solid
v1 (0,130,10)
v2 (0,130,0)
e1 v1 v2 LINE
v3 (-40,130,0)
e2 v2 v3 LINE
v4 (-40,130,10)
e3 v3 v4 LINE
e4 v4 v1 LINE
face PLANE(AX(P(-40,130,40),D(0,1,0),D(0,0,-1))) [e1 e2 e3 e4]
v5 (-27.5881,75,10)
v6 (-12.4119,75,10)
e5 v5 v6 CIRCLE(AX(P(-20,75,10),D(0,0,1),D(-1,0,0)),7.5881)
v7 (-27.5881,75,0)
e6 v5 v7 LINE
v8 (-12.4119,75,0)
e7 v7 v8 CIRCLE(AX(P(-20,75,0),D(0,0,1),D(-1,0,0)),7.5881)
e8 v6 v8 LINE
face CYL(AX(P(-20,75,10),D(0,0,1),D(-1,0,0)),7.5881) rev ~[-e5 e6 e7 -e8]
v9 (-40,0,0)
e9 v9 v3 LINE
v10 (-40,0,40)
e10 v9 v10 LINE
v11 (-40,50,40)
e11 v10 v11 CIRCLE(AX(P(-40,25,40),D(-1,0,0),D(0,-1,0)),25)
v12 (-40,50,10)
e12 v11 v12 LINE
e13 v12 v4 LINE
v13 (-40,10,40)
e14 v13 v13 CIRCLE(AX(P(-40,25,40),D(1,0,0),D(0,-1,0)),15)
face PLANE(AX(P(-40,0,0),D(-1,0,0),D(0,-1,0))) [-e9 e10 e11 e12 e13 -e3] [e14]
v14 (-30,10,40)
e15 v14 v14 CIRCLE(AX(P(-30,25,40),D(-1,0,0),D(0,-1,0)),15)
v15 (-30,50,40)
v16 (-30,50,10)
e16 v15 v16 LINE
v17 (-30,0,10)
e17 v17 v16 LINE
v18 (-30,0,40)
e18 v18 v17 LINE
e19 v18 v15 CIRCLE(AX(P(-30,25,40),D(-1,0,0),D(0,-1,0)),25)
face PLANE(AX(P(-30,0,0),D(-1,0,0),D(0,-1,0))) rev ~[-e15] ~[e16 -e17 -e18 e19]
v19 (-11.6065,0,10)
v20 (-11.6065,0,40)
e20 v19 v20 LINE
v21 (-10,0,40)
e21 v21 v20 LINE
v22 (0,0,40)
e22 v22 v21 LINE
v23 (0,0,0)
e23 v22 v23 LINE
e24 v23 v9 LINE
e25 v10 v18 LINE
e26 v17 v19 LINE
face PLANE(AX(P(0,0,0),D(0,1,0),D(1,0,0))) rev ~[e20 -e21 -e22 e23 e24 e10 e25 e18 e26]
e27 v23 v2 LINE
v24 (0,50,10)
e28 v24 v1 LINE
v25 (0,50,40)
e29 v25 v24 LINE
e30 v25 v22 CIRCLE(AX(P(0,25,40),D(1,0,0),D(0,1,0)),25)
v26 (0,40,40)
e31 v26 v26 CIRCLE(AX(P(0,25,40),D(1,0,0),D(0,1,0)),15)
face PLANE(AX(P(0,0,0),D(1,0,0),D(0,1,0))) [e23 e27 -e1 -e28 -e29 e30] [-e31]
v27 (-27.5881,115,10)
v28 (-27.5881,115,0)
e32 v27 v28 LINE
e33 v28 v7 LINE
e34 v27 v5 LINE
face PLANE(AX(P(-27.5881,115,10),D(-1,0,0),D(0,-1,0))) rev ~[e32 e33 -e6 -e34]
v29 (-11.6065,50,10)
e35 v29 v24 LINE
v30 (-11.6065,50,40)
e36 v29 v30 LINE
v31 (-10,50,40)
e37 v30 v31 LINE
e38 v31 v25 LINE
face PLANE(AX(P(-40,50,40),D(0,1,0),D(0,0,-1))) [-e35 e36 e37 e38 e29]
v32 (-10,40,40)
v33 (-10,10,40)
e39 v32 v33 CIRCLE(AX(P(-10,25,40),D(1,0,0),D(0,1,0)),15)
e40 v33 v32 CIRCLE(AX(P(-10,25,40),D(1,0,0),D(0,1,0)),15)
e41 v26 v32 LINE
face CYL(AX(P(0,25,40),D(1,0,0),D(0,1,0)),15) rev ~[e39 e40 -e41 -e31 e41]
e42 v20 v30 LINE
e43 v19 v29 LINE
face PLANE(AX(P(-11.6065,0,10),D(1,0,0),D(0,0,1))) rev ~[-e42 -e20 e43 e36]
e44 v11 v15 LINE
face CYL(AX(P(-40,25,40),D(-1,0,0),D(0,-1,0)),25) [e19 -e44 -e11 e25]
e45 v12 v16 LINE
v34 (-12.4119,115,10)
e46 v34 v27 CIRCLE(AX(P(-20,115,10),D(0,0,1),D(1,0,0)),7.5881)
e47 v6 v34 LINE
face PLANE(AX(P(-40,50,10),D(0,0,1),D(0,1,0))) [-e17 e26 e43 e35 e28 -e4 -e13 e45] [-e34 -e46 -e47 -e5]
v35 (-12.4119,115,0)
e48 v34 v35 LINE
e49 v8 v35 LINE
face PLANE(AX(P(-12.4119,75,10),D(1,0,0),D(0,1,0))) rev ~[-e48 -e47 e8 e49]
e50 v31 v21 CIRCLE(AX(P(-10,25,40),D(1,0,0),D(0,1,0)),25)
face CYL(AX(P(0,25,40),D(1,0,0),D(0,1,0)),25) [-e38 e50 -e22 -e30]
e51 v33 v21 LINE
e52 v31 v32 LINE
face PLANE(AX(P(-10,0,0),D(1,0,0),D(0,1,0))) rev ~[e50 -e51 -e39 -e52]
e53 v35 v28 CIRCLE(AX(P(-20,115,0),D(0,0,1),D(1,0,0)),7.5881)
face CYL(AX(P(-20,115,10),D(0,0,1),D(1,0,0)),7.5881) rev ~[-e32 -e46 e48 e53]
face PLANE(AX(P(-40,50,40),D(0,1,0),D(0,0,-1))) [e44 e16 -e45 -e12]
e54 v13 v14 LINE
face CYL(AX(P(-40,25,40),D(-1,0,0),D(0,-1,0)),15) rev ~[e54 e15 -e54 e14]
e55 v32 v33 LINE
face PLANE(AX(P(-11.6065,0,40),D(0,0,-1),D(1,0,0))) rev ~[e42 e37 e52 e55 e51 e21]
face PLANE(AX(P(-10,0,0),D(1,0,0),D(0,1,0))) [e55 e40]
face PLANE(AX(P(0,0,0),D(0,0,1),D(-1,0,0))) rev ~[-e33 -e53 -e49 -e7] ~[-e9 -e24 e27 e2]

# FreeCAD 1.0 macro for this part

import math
import FreeCAD as App
import Part
import Sketcher

doc = App.newDocument("Part")
params = doc.addObject("Spreadsheet::Sheet", "Params")
for row, (alias, value) in enumerate([
    ("sketch1_width", "40 mm"),
    ("sketch1_width2", "10 mm"),
    ("pad1_length", "130 mm"),
    ("sketch2_radius", "25 mm"),
    ("sketch2_radius2", "15 mm"),
    ("pad2_length", "10 mm"),
    ("sketch3_diameter", "30 mm"),
    ("pocket1_length", "10 mm"),
    ("sketch4_height", "30 mm"),
    ("sketch4_width", "80 mm"),
    ("pocket2_length", "10 mm"),
    ("sketch5_height", "30 mm"),
    ("sketch5_width", "80 mm"),
    ("pad3_length", "10 mm"),
    ("sketch6_height", "30 mm"),
    ("sketch6_width", "80 mm"),
    ("pocket3_length", "66.91 mm"),
    ("sketch7_radius", "25 mm"),
    ("sketch7_radius2", "15 mm"),
    ("pocket4_length", "10 mm"),
    ("sketch8_radius", "25 mm"),
    ("sketch8_radius2", "15 mm"),
    ("pad4_length", "10 mm"),
    ("sketch9_height", "40 mm"),
    ("pocket5_length", "34.041 mm"),
], start=1):
    params.set(f"A{row}", alias)
    params.set(f"B{row}", "=" + value)
    params.setAlias(f"B{row}", alias)

body = doc.addObject("PartDesign::Body", "Body")

sketch1 = body.newObject("Sketcher::SketchObject", "Sketch")
sketch1.AttachmentSupport = (doc.getObject("XZ_Plane"), [""])
sketch1.MapMode = "FlatFace"
sketch1.addGeometry(Part.LineSegment(App.Vector(0, 40, 0), App.Vector(0, 0, 0)), False)
sketch1.addGeometry(Part.LineSegment(App.Vector(0, 0, 0), App.Vector(-40, 0, 0)), False)
sketch1.addGeometry(Part.LineSegment(App.Vector(-40, 0, 0), App.Vector(-40, 40, 0)), False)
sketch1.addGeometry(Part.LineSegment(App.Vector(-40, 40, 0), App.Vector(-30, 40, 0)), False)
sketch1.addGeometry(Part.LineSegment(App.Vector(-30, 40, 0), App.Vector(-30, 10, 0)), False)
sketch1.addGeometry(Part.LineSegment(App.Vector(-30, 10, 0), App.Vector(-11.6065, 10, 0)), False)
sketch1.addGeometry(Part.LineSegment(App.Vector(-11.6065, 10, 0), App.Vector(-11.6065, 40, 0)), False)
sketch1.addGeometry(Part.LineSegment(App.Vector(-11.6065, 40, 0), App.Vector(0, 40, 0)), False)
sketch1.addConstraint(Sketcher.Constraint("Coincident", 0, 2, 1, 1))
sketch1.addConstraint(Sketcher.Constraint("Coincident", 1, 2, 2, 1))
sketch1.addConstraint(Sketcher.Constraint("Coincident", 2, 2, 3, 1))
sketch1.addConstraint(Sketcher.Constraint("Coincident", 3, 2, 4, 1))
sketch1.addConstraint(Sketcher.Constraint("Coincident", 4, 2, 5, 1))
sketch1.addConstraint(Sketcher.Constraint("Coincident", 5, 2, 6, 1))
sketch1.addConstraint(Sketcher.Constraint("Coincident", 6, 2, 7, 1))
sketch1.addConstraint(Sketcher.Constraint("Coincident", 7, 2, 0, 1))
sketch1.addConstraint(Sketcher.Constraint("Vertical", 0))
sketch1.addConstraint(Sketcher.Constraint("Horizontal", 1))
sketch1.addConstraint(Sketcher.Constraint("Vertical", 2))
sketch1.addConstraint(Sketcher.Constraint("Horizontal", 3))
sketch1.addConstraint(Sketcher.Constraint("Vertical", 4))
sketch1.addConstraint(Sketcher.Constraint("Horizontal", 5))
sketch1.addConstraint(Sketcher.Constraint("Vertical", 6))
sketch1.addConstraint(Sketcher.Constraint("Horizontal", 7))
sketch1.addConstraint(Sketcher.Constraint("Coincident", 0, 2, -1, 1))
sketch1.addConstraint(Sketcher.Constraint("Horizontal", 3, 2, 6, 2))
sketch1.addConstraint(Sketcher.Constraint("Equal", 1, 0))
sketch1.addConstraint(Sketcher.Constraint("DistanceX", 1, 2, 1, 1, 40.0))
sketch1.addConstraint(Sketcher.Constraint("DistanceX", 3, 1, 3, 2, 10.0))
sketch1.addConstraint(Sketcher.Constraint("DistanceY", -1, 1, 4, 2, 10.0))
sketch1.addConstraint(Sketcher.Constraint("DistanceX", 7, 1, 7, 2, 11.6065))
sketch1.setExpression("Constraints[19]", "Params.sketch1_width")
sketch1.setExpression("Constraints[20]", "Params.sketch1_width2")
pad1 = body.newObject("PartDesign::Pad", "Pad")
pad1.Profile = sketch1
pad1.setExpression("Length", "Params.pad1_length")
pad1.Reversed = True

sketch2 = body.newObject("Sketcher::SketchObject", "Sketch001")
sketch2.AttachmentSupport = (doc.getObject("YZ_Plane"), [""])
sketch2.MapMode = "FlatFace"
sketch2.AttachmentOffset = App.Placement(App.Vector(0, 0, -40), App.Rotation())
sketch2.addGeometry(Part.LineSegment(App.Vector(10, 40, 0), App.Vector(0, 40, 0)), False)
sketch2.addGeometry(Part.ArcOfCircle(Part.Circle(App.Vector(25, 40, 0), App.Vector(0, 0, 1), 25), math.radians(0), math.radians(180)), False)
sketch2.addGeometry(Part.LineSegment(App.Vector(50, 40, 0), App.Vector(40, 40, 0)), False)
sketch2.addGeometry(Part.ArcOfCircle(Part.Circle(App.Vector(25, 40, 0), App.Vector(0, 0, 1), 15), math.radians(0), math.radians(180)), False)
sketch2.addConstraint(Sketcher.Constraint("Coincident", 0, 2, 1, 2))
sketch2.addConstraint(Sketcher.Constraint("Coincident", 1, 1, 2, 1))
sketch2.addConstraint(Sketcher.Constraint("Coincident", 2, 2, 3, 1))
sketch2.addConstraint(Sketcher.Constraint("Coincident", 3, 2, 0, 1))
sketch2.addConstraint(Sketcher.Constraint("Horizontal", 0))
sketch2.addConstraint(Sketcher.Constraint("Horizontal", 2))
sketch2.addConstraint(Sketcher.Constraint("Coincident", 3, 3, 1, 3))
sketch2.addConstraint(Sketcher.Constraint("PointOnObject", 0, 2, -2))
sketch2.addConstraint(Sketcher.Constraint("Horizontal", 3, 3, 0, 2))
sketch2.addConstraint(Sketcher.Constraint("Horizontal", 0, 2, 1, 1))
sketch2.addConstraint(Sketcher.Constraint("Radius", 1, 25.0))
sketch2.addConstraint(Sketcher.Constraint("Radius", 3, 15.0))
sketch2.addConstraint(Sketcher.Constraint("DistanceY", -1, 1, 1, 3, 40.0))
sketch2.setExpression("Constraints[10]", "Params.sketch2_radius")
sketch2.setExpression("Constraints[11]", "Params.sketch2_radius2")
pad2 = body.newObject("PartDesign::Pad", "Pad001")
pad2.Profile = sketch2
pad2.setExpression("Length", "Params.pad2_length")

sketch3 = body.newObject("Sketcher::SketchObject", "Sketch002")
sketch3.AttachmentSupport = (doc.getObject("YZ_Plane"), [""])
sketch3.MapMode = "FlatFace"
sketch3.AttachmentOffset = App.Placement(App.Vector(0, 0, -40), App.Rotation())
sketch3.addGeometry(Part.Circle(App.Vector(25, 40, 0), App.Vector(0, 0, 1), 15), False)
sketch3.addConstraint(Sketcher.Constraint("Diameter", 0, 30.0))
sketch3.addConstraint(Sketcher.Constraint("DistanceX", -1, 1, 0, 3, 25.0))
sketch3.addConstraint(Sketcher.Constraint("DistanceY", -1, 1, 0, 3, 40.0))
sketch3.setExpression("Constraints[0]", "Params.sketch3_diameter")
pocket1 = body.newObject("PartDesign::Pocket", "Pocket")
pocket1.Profile = sketch3
pocket1.setExpression("Length", "Params.pocket1_length")
pocket1.Reversed = True

sketch4 = body.newObject("Sketcher::SketchObject", "Sketch003")
sketch4.AttachmentSupport = (doc.getObject("YZ_Plane"), [""])
sketch4.MapMode = "FlatFace"
sketch4.AttachmentOffset = App.Placement(App.Vector(0, 0, -40), App.Rotation())
sketch4.addGeometry(Part.LineSegment(App.Vector(50, 10, 0), App.Vector(50, 40, 0)), False)
sketch4.addGeometry(Part.LineSegment(App.Vector(50, 40, 0), App.Vector(130, 40, 0)), False)
sketch4.addGeometry(Part.LineSegment(App.Vector(130, 40, 0), App.Vector(130, 10, 0)), False)
sketch4.addGeometry(Part.LineSegment(App.Vector(130, 10, 0), App.Vector(50, 10, 0)), False)
sketch4.addConstraint(Sketcher.Constraint("Coincident", 0, 2, 1, 1))
sketch4.addConstraint(Sketcher.Constraint("Coincident", 1, 2, 2, 1))
sketch4.addConstraint(Sketcher.Constraint("Coincident", 2, 2, 3, 1))
sketch4.addConstraint(Sketcher.Constraint("Coincident", 3, 2, 0, 1))
sketch4.addConstraint(Sketcher.Constraint("Vertical", 0))
sketch4.addConstraint(Sketcher.Constraint("Horizontal", 1))
sketch4.addConstraint(Sketcher.Constraint("Vertical", 2))
sketch4.addConstraint(Sketcher.Constraint("Horizontal", 3))
sketch4.addConstraint(Sketcher.Constraint("DistanceY", 0, 1, 0, 2, 30.0))
sketch4.addConstraint(Sketcher.Constraint("DistanceX", -1, 1, 0, 2, 50.0))
sketch4.addConstraint(Sketcher.Constraint("DistanceX", 1, 1, 1, 2, 80.0))
sketch4.addConstraint(Sketcher.Constraint("DistanceY", -1, 1, 0, 2, 40.0))
sketch4.setExpression("Constraints[8]", "Params.sketch4_height")
sketch4.setExpression("Constraints[10]", "Params.sketch4_width")
pocket2 = body.newObject("PartDesign::Pocket", "Pocket001")
pocket2.Profile = sketch4
pocket2.setExpression("Length", "Params.pocket2_length")
pocket2.Reversed = True

sketch5 = body.newObject("Sketcher::SketchObject", "Sketch004")
sketch5.AttachmentSupport = (doc.getObject("YZ_Plane"), [""])
sketch5.MapMode = "FlatFace"
sketch5.AttachmentOffset = App.Placement(App.Vector(0, 0, -40), App.Rotation())
sketch5.addGeometry(Part.LineSegment(App.Vector(50, 10, 0), App.Vector(50, 40, 0)), False)
sketch5.addGeometry(Part.LineSegment(App.Vector(50, 40, 0), App.Vector(130, 40, 0)), False)
sketch5.addGeometry(Part.LineSegment(App.Vector(130, 40, 0), App.Vector(130, 10, 0)), False)
sketch5.addGeometry(Part.LineSegment(App.Vector(130, 10, 0), App.Vector(50, 10, 0)), False)
sketch5.addConstraint(Sketcher.Constraint("Coincident", 0, 2, 1, 1))
sketch5.addConstraint(Sketcher.Constraint("Coincident", 1, 2, 2, 1))
sketch5.addConstraint(Sketcher.Constraint("Coincident", 2, 2, 3, 1))
sketch5.addConstraint(Sketcher.Constraint("Coincident", 3, 2, 0, 1))
sketch5.addConstraint(Sketcher.Constraint("Vertical", 0))
sketch5.addConstraint(Sketcher.Constraint("Horizontal", 1))
sketch5.addConstraint(Sketcher.Constraint("Vertical", 2))
sketch5.addConstraint(Sketcher.Constraint("Horizontal", 3))
sketch5.addConstraint(Sketcher.Constraint("DistanceY", 0, 1, 0, 2, 30.0))
sketch5.addConstraint(Sketcher.Constraint("DistanceX", -1, 1, 0, 2, 50.0))
sketch5.addConstraint(Sketcher.Constraint("DistanceX", 1, 1, 1, 2, 80.0))
sketch5.addConstraint(Sketcher.Constraint("DistanceY", -1, 1, 0, 2, 40.0))
sketch5.setExpression("Constraints[8]", "Params.sketch5_height")
sketch5.setExpression("Constraints[10]", "Params.sketch5_width")
pad3 = body.newObject("PartDesign::Pad", "Pad002")
pad3.Profile = sketch5
pad3.setExpression("Length", "Params.pad3_length")

sketch6 = body.newObject("Sketcher::SketchObject", "Sketch005")
sketch6.AttachmentSupport = (doc.getObject("YZ_Plane"), [""])
sketch6.MapMode = "FlatFace"
sketch6.AttachmentOffset = App.Placement(App.Vector(0, 0, -40), App.Rotation())
sketch6.addGeometry(Part.LineSegment(App.Vector(50, 10, 0), App.Vector(50, 40, 0)), False)
sketch6.addGeometry(Part.LineSegment(App.Vector(50, 40, 0), App.Vector(130, 40, 0)), False)
sketch6.addGeometry(Part.LineSegment(App.Vector(130, 40, 0), App.Vector(130, 10, 0)), False)
sketch6.addGeometry(Part.LineSegment(App.Vector(130, 10, 0), App.Vector(50, 10, 0)), False)
sketch6.addConstraint(Sketcher.Constraint("Coincident", 0, 2, 1, 1))
sketch6.addConstraint(Sketcher.Constraint("Coincident", 1, 2, 2, 1))
sketch6.addConstraint(Sketcher.Constraint("Coincident", 2, 2, 3, 1))
sketch6.addConstraint(Sketcher.Constraint("Coincident", 3, 2, 0, 1))
sketch6.addConstraint(Sketcher.Constraint("Vertical", 0))
sketch6.addConstraint(Sketcher.Constraint("Horizontal", 1))
sketch6.addConstraint(Sketcher.Constraint("Vertical", 2))
sketch6.addConstraint(Sketcher.Constraint("Horizontal", 3))
sketch6.addConstraint(Sketcher.Constraint("DistanceY", 0, 1, 0, 2, 30.0))
sketch6.addConstraint(Sketcher.Constraint("DistanceX", -1, 1, 0, 2, 50.0))
sketch6.addConstraint(Sketcher.Constraint("DistanceX", 1, 1, 1, 2, 80.0))
sketch6.addConstraint(Sketcher.Constraint("DistanceY", -1, 1, 0, 2, 40.0))
sketch6.setExpression("Constraints[8]", "Params.sketch6_height")
sketch6.setExpression("Constraints[10]", "Params.sketch6_width")
pocket3 = body.newObject("PartDesign::Pocket", "Pocket002")
pocket3.Profile = sketch6
pocket3.setExpression("Length", "Params.pocket3_length")
pocket3.Reversed = True

sketch7 = body.newObject("Sketcher::SketchObject", "Sketch006")
sketch7.AttachmentSupport = (doc.getObject("YZ_Plane"), [""])
sketch7.MapMode = "FlatFace"
sketch7.addGeometry(Part.LineSegment(App.Vector(40, 40, 0), App.Vector(50, 40, 0)), False)
sketch7.addGeometry(Part.ArcOfCircle(Part.Circle(App.Vector(25, 40, 0), App.Vector(0, 0, 1), 25), math.radians(0), math.radians(180)), False)
sketch7.addGeometry(Part.LineSegment(App.Vector(0, 40, 0), App.Vector(10, 40, 0)), False)
sketch7.addGeometry(Part.ArcOfCircle(Part.Circle(App.Vector(25, 40, 0), App.Vector(0, 0, 1), 15), math.radians(180), math.radians(360)), False)
sketch7.addConstraint(Sketcher.Constraint("Coincident", 0, 2, 1, 1))
sketch7.addConstraint(Sketcher.Constraint("Coincident", 1, 2, 2, 1))
sketch7.addConstraint(Sketcher.Constraint("Coincident", 2, 2, 3, 1))
sketch7.addConstraint(Sketcher.Constraint("Coincident", 3, 2, 0, 1))
sketch7.addConstraint(Sketcher.Constraint("Horizontal", 0))
sketch7.addConstraint(Sketcher.Constraint("Horizontal", 2))
sketch7.addConstraint(Sketcher.Constraint("Coincident", 3, 3, 1, 3))
sketch7.addConstraint(Sketcher.Constraint("PointOnObject", 1, 2, -2))
sketch7.addConstraint(Sketcher.Constraint("Horizontal", 3, 3, 0, 2))
sketch7.addConstraint(Sketcher.Constraint("Horizontal", 0, 2, 1, 2))
sketch7.addConstraint(Sketcher.Constraint("Radius", 1, 25.0))
sketch7.addConstraint(Sketcher.Constraint("Radius", 3, 15.0))
sketch7.addConstraint(Sketcher.Constraint("DistanceY", -1, 1, 1, 3, 40.0))
sketch7.setExpression("Constraints[10]", "Params.sketch7_radius")
sketch7.setExpression("Constraints[11]", "Params.sketch7_radius2")
pocket4 = body.newObject("PartDesign::Pocket", "Pocket003")
pocket4.Profile = sketch7
pocket4.setExpression("Length", "Params.pocket4_length")

sketch8 = body.newObject("Sketcher::SketchObject", "Sketch007")
sketch8.AttachmentSupport = (doc.getObject("YZ_Plane"), [""])
sketch8.MapMode = "FlatFace"
sketch8.addGeometry(Part.LineSegment(App.Vector(40, 40, 0), App.Vector(50, 40, 0)), False)
sketch8.addGeometry(Part.ArcOfCircle(Part.Circle(App.Vector(25, 40, 0), App.Vector(0, 0, 1), 25), math.radians(0), math.radians(180)), False)
sketch8.addGeometry(Part.LineSegment(App.Vector(0, 40, 0), App.Vector(10, 40, 0)), False)
sketch8.addGeometry(Part.ArcOfCircle(Part.Circle(App.Vector(25, 40, 0), App.Vector(0, 0, 1), 15), math.radians(0), math.radians(180)), False)
sketch8.addConstraint(Sketcher.Constraint("Coincident", 0, 2, 1, 1))
sketch8.addConstraint(Sketcher.Constraint("Coincident", 1, 2, 2, 1))
sketch8.addConstraint(Sketcher.Constraint("Coincident", 2, 2, 3, 2))
sketch8.addConstraint(Sketcher.Constraint("Coincident", 3, 1, 0, 1))
sketch8.addConstraint(Sketcher.Constraint("Horizontal", 0))
sketch8.addConstraint(Sketcher.Constraint("Horizontal", 2))
sketch8.addConstraint(Sketcher.Constraint("Coincident", 3, 3, 1, 3))
sketch8.addConstraint(Sketcher.Constraint("PointOnObject", 1, 2, -2))
sketch8.addConstraint(Sketcher.Constraint("Horizontal", 3, 3, 0, 2))
sketch8.addConstraint(Sketcher.Constraint("Horizontal", 0, 2, 1, 2))
sketch8.addConstraint(Sketcher.Constraint("Radius", 1, 25.0))
sketch8.addConstraint(Sketcher.Constraint("Radius", 3, 15.0))
sketch8.addConstraint(Sketcher.Constraint("DistanceY", -1, 1, 1, 3, 40.0))
sketch8.setExpression("Constraints[10]", "Params.sketch8_radius")
sketch8.setExpression("Constraints[11]", "Params.sketch8_radius2")
pad4 = body.newObject("PartDesign::Pad", "Pad003")
pad4.Profile = sketch8
pad4.setExpression("Length", "Params.pad4_length")
pad4.Reversed = True

sketch9 = body.newObject("Sketcher::SketchObject", "Sketch008")
sketch9.AttachmentSupport = (doc.getObject("XY_Plane"), [""])
sketch9.MapMode = "FlatFace"
sketch9.AttachmentOffset = App.Placement(App.Vector(0, 0, 10), App.Rotation())
sketch9.addGeometry(Part.ArcOfCircle(Part.Circle(App.Vector(-20, 75, 0), App.Vector(0, 0, 1), 7.5881), math.radians(180), math.radians(360)), False)
sketch9.addGeometry(Part.LineSegment(App.Vector(-12.4119, 75, 0), App.Vector(-12.4119, 115, 0)), False)
sketch9.addGeometry(Part.ArcOfCircle(Part.Circle(App.Vector(-20, 115, 0), App.Vector(0, 0, 1), 7.5881), math.radians(0), math.radians(180)), False)
sketch9.addGeometry(Part.LineSegment(App.Vector(-27.5881, 115, 0), App.Vector(-27.5881, 75, 0)), False)
sketch9.addConstraint(Sketcher.Constraint("Tangent", 0, 2, 1, 1))
sketch9.addConstraint(Sketcher.Constraint("Tangent", 1, 2, 2, 1))
sketch9.addConstraint(Sketcher.Constraint("Tangent", 2, 2, 3, 1))
sketch9.addConstraint(Sketcher.Constraint("Tangent", 3, 2, 0, 1))
sketch9.addConstraint(Sketcher.Constraint("Vertical", 1))
sketch9.addConstraint(Sketcher.Constraint("Vertical", 3))
sketch9.addConstraint(Sketcher.Constraint("DistanceY", 1, 1, 1, 2, 40.0))
sketch9.addConstraint(Sketcher.Constraint("DistanceX", 0, 3, -1, 1, 20.0))
sketch9.addConstraint(Sketcher.Constraint("DistanceY", -1, 1, 0, 3, 75.0))
sketch9.addConstraint(Sketcher.Constraint("Radius", 0, 7.588))
sketch9.setExpression("Constraints[6]", "Params.sketch9_height")
pocket5 = body.newObject("PartDesign::Pocket", "Pocket004")
pocket5.Profile = sketch9
pocket5.setExpression("Length", "Params.pocket5_length")

doc.recompute()
